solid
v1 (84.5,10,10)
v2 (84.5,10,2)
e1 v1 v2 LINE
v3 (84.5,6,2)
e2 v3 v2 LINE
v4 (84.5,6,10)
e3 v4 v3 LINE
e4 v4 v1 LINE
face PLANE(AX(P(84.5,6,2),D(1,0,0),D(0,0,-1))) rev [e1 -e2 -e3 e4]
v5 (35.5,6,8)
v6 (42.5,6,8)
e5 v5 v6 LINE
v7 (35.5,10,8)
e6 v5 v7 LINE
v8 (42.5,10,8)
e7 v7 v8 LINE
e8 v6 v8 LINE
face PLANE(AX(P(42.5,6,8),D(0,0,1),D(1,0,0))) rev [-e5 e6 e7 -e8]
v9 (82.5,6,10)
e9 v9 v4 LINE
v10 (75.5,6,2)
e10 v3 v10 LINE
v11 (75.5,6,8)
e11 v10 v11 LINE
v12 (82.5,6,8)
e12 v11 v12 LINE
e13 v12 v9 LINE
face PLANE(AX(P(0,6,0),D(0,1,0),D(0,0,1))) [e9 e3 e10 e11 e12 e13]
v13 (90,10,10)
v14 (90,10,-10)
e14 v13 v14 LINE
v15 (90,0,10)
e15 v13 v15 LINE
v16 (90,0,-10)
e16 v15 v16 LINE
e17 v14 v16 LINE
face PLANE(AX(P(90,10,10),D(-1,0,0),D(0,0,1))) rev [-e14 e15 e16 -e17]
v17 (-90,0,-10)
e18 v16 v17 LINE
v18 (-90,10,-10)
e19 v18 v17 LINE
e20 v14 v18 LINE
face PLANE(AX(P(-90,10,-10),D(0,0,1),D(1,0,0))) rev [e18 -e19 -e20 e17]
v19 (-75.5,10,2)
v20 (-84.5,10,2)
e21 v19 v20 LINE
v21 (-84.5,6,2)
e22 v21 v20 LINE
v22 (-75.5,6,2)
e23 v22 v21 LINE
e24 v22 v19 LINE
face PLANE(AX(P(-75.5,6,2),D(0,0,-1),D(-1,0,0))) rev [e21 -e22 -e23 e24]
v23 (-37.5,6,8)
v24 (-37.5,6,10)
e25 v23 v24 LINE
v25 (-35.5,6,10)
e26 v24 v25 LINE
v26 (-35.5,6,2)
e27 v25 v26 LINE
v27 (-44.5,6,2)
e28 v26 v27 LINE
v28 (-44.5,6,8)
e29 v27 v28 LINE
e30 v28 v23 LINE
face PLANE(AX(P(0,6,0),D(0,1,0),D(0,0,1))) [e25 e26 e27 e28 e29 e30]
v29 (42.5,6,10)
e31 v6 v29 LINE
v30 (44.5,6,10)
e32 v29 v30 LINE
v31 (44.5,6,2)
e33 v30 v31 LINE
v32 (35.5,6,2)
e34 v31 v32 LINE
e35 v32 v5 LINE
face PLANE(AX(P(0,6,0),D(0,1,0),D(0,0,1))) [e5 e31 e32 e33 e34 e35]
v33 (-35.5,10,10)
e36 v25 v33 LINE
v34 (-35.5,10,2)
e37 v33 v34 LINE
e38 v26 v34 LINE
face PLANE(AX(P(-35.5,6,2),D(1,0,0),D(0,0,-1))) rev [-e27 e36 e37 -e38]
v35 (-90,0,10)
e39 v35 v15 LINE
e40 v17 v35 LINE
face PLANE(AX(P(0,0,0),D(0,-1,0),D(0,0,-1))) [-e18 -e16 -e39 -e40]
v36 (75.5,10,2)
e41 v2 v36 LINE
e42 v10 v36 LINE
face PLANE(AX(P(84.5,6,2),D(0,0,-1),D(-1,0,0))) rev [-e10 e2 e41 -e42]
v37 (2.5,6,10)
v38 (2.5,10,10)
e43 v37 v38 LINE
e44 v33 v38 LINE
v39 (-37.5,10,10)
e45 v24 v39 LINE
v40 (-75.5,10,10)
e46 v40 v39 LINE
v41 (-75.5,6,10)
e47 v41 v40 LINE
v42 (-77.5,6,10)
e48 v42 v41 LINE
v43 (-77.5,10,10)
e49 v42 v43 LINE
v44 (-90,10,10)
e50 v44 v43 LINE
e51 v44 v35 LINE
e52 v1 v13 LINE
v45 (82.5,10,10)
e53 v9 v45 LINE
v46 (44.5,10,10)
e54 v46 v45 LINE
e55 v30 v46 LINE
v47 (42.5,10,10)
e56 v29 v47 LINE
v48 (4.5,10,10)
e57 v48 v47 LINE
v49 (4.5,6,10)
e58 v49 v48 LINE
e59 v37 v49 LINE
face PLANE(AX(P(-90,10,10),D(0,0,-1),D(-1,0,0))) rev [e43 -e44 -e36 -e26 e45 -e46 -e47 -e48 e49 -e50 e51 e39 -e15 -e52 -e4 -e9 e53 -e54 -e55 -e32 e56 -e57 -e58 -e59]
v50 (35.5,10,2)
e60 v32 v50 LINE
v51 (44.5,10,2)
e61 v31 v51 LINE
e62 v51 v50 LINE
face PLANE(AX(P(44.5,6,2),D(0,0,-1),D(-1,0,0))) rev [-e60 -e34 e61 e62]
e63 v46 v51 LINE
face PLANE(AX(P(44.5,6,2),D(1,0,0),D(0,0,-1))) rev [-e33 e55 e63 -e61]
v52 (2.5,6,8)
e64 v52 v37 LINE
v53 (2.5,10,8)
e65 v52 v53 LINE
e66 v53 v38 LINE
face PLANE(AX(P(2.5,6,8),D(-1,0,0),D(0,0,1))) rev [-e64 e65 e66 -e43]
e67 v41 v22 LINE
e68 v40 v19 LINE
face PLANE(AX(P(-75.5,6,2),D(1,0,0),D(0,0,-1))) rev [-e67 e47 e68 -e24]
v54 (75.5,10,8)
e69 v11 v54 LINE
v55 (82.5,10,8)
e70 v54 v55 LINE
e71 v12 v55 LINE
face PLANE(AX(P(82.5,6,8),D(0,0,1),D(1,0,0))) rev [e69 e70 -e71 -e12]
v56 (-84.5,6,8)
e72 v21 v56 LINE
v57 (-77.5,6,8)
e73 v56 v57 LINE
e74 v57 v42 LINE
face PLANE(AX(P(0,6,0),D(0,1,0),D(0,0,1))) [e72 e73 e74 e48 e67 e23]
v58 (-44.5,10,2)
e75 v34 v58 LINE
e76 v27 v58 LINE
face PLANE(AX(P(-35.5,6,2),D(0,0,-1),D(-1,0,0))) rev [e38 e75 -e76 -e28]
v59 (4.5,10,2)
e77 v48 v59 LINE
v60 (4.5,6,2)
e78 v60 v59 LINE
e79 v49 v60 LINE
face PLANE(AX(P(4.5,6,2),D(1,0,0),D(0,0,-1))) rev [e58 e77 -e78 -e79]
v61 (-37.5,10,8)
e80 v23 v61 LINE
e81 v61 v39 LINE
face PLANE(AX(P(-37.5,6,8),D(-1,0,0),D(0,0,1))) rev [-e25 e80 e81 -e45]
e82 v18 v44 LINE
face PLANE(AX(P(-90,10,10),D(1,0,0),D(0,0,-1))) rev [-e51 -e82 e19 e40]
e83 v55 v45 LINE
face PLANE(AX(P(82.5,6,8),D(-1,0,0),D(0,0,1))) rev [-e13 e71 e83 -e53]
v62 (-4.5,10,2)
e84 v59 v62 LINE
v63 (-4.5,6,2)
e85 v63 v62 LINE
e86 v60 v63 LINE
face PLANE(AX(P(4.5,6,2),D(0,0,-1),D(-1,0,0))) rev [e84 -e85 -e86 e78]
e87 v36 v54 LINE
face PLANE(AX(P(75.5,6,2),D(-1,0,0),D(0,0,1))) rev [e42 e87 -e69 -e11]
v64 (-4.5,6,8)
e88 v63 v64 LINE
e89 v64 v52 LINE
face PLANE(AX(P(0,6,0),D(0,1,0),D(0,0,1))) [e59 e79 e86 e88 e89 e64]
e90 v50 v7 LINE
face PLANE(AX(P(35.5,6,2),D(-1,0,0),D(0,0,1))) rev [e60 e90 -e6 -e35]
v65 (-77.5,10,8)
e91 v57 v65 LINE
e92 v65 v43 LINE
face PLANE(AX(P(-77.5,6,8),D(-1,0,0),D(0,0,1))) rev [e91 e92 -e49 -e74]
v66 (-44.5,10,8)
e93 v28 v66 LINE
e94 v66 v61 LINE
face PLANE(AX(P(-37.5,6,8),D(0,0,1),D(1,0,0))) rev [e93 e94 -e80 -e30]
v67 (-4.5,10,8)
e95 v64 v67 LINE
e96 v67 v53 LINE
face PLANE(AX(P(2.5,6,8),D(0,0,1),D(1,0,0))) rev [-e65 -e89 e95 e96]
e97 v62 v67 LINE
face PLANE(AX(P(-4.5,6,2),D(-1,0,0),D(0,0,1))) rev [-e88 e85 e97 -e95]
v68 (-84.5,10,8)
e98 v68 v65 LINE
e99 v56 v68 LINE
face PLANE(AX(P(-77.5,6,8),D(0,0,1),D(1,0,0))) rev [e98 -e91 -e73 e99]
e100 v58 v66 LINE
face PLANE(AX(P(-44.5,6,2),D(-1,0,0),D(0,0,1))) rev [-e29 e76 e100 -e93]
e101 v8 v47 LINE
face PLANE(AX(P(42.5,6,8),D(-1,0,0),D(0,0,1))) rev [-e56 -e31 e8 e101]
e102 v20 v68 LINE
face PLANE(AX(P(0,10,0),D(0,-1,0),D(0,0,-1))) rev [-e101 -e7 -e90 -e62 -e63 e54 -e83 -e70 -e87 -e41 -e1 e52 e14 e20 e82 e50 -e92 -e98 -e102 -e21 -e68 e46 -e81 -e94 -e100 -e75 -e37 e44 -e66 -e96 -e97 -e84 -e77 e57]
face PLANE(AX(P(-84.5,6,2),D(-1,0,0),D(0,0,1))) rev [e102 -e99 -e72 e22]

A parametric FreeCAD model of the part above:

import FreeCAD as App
import Part
import Sketcher
from FreeCAD import Vector


def add_polygon(sketch, points):
    """Adds a closed chain of lines whose ends are joined by coincident constraints."""
    first, n = sketch.GeometryCount, len(points)
    for a, b in zip(points, points[1:] + points[:1]):
        sketch.addGeometry(Part.LineSegment(App.Vector(*a, 0), App.Vector(*b, 0)), False)
    for i in range(n):
        sketch.addConstraint(Sketcher.Constraint("Coincident", first + i, 2, first + (i + 1) % n, 1))

doc = App.newDocument("Part")
params = doc.addObject("Spreadsheet::Sheet", "Params")
for row, (alias, value) in enumerate([
    ("sketch1_width", "180 mm"),
    ("sketch1_height", "20 mm"),
    ("pad1_length", "10 mm"),
    ("sketch2_width", "9 mm"),
    ("sketch2_width2", "7 mm"),
    ("sketch2_height", "8 mm"),
    ("pocket1_length", "4 mm"),
], start=1):
    params.set(f"A{row}", alias)
    params.set(f"B{row}", "=" + value)
    params.setAlias(f"B{row}", alias)

body = doc.addObject("PartDesign::Body", "Body")

# Sketch on XZ plane
sketch1 = body.newObject("Sketcher::SketchObject", "Sketch")
sketch1.AttachmentSupport = (doc.getObject("XZ_Plane"), [""])
sketch1.MapMode = "FlatFace"
add_polygon(sketch1, [(-90, -10), (-90, 10), (90, 10), (90, -10)])  # lines 0-3
sketch1.addConstraint([
    Sketcher.Constraint("Vertical", 0),
    Sketcher.Constraint("Horizontal", 1),
    Sketcher.Constraint("Vertical", 2),
    Sketcher.Constraint("Horizontal", 3),
    Sketcher.Constraint("Symmetric", 0, 2, 2, 2, -1, 1),
    Sketcher.Constraint("DistanceX", 1, 1, 1, 2, 180.0),
    Sketcher.Constraint("DistanceY", 0, 1, 0, 2, 20.0),
])
sketch1.setExpression("Constraints[9]", "Params.sketch1_width")
sketch1.setExpression("Constraints[10]", "Params.sketch1_height")
pad1 = body.newObject("PartDesign::Pad", "Pad")
pad1.Profile = sketch1
pad1.setExpression("Length", "Params.pad1_length")
pad1.Reversed = True

# Sketch on XZ plane
sketch2 = body.newObject("Sketcher::SketchObject", "Sketch001")
sketch2.AttachmentSupport = (doc.getObject("XZ_Plane"), [""])
sketch2.MapMode = "FlatFace"
sketch2.AttachmentOffset = App.Placement(Vector(0, 0, -10), App.Rotation())
add_polygon(sketch2, [(84.5, 10), (84.5, 2), (75.5, 2), (75.5, 8), (82.5, 8), (82.5, 10)])  # lines 0-5
add_polygon(sketch2, [(44.5, 10), (44.5, 2), (35.5, 2), (35.5, 8), (42.5, 8), (42.5, 10)])  # lines 6-11
add_polygon(sketch2, [(4.5, 10), (4.5, 2), (-4.5, 2), (-4.5, 8), (2.5, 8), (2.5, 10)])  # lines 12-17
add_polygon(sketch2, [(-35.5, 10), (-35.5, 2), (-44.5, 2), (-44.5, 8), (-37.5, 8), (-37.5, 10)])  # lines 18-23
add_polygon(sketch2, [(-75.5, 10), (-75.5, 2), (-84.5, 2), (-84.5, 8), (-77.5, 8), (-77.5, 10)])  # lines 24-29
sketch2.addConstraint([
    Sketcher.Constraint("Vertical", 0),
    Sketcher.Constraint("Horizontal", 1),
    Sketcher.Constraint("Vertical", 2),
    Sketcher.Constraint("Horizontal", 3),
    Sketcher.Constraint("Vertical", 4),
    Sketcher.Constraint("Horizontal", 5),
    Sketcher.Constraint("Vertical", 6),
    Sketcher.Constraint("Horizontal", 7),
    Sketcher.Constraint("Vertical", 8),
    Sketcher.Constraint("Horizontal", 9),
    Sketcher.Constraint("Vertical", 10),
    Sketcher.Constraint("Horizontal", 11),
    Sketcher.Constraint("Vertical", 12),
    Sketcher.Constraint("Horizontal", 13),
    Sketcher.Constraint("Vertical", 14),
    Sketcher.Constraint("Horizontal", 15),
    Sketcher.Constraint("Vertical", 16),
    Sketcher.Constraint("Horizontal", 17),
    Sketcher.Constraint("Vertical", 18),
    Sketcher.Constraint("Horizontal", 19),
    Sketcher.Constraint("Vertical", 20),
    Sketcher.Constraint("Horizontal", 21),
    Sketcher.Constraint("Vertical", 22),
    Sketcher.Constraint("Horizontal", 23),
    Sketcher.Constraint("Vertical", 24),
    Sketcher.Constraint("Horizontal", 25),
    Sketcher.Constraint("Vertical", 26),
    Sketcher.Constraint("Horizontal", 27),
    Sketcher.Constraint("Vertical", 28),
    Sketcher.Constraint("Horizontal", 29),
    Sketcher.Constraint("Symmetric", 7, 2, 18, 2, -2),
    Sketcher.Constraint("Symmetric", 1, 2, 24, 2, -2),
    Sketcher.Constraint("Horizontal", 1, 2, 6, 2),
    Sketcher.Constraint("Horizontal", 3, 2, 8, 2),
    Sketcher.Constraint("Horizontal", 5, 2, 10, 2),
    Sketcher.Constraint("Horizontal", 7, 2, 12, 2),
    Sketcher.Constraint("Horizontal", 9, 2, 14, 2),
    Sketcher.Constraint("Horizontal", 11, 2, 16, 2),
    Sketcher.Constraint("Horizontal", 15, 2, 20, 2),
    Sketcher.Constraint("Horizontal", 17, 2, 22, 2),
    Sketcher.Constraint("Horizontal", 21, 2, 26, 2),
    Sketcher.Constraint("Horizontal", 23, 2, 28, 2),
    Sketcher.Constraint("Equal", 1, 7),
    Sketcher.Constraint("Equal", 3, 9),
    Sketcher.Constraint("Equal", 7, 13),
    Sketcher.Constraint("Equal", 9, 15),
    Sketcher.Constraint("Equal", 13, 19),
    Sketcher.Constraint("Equal", 15, 21),
    Sketcher.Constraint("Equal", 19, 25),
    Sketcher.Constraint("Equal", 21, 27),
    Sketcher.Constraint("Equal", 29, 4),
    Sketcher.Constraint("DistanceX", 1, 2, 1, 1, 9.0),
    Sketcher.Constraint("DistanceX", 3, 1, 3, 2, 7.0),
    Sketcher.Constraint("DistanceY", 0, 2, 0, 1, 8.0),
    Sketcher.Constraint("DistanceY", -1, 1, 0, 2, 2.0),
    Sketcher.Constraint("DistanceX", 6, 2, 1, 2, 31.0),
    Sketcher.Constraint("DistanceX", 12, 2, 7, 2, 31.0),
    Sketcher.Constraint("DistanceX", 18, 2, 13, 2, 31.0),
])
sketch2.setExpression("Constraints[81]", "Params.sketch2_width")
sketch2.setExpression("Constraints[82]", "Params.sketch2_width2")
sketch2.setExpression("Constraints[83]", "Params.sketch2_height")
pocket1 = body.newObject("PartDesign::Pocket", "Pocket")
pocket1.Profile = sketch2
pocket1.setExpression("Length", "Params.pocket1_length")
pocket1.Reversed = True

doc.recompute()
